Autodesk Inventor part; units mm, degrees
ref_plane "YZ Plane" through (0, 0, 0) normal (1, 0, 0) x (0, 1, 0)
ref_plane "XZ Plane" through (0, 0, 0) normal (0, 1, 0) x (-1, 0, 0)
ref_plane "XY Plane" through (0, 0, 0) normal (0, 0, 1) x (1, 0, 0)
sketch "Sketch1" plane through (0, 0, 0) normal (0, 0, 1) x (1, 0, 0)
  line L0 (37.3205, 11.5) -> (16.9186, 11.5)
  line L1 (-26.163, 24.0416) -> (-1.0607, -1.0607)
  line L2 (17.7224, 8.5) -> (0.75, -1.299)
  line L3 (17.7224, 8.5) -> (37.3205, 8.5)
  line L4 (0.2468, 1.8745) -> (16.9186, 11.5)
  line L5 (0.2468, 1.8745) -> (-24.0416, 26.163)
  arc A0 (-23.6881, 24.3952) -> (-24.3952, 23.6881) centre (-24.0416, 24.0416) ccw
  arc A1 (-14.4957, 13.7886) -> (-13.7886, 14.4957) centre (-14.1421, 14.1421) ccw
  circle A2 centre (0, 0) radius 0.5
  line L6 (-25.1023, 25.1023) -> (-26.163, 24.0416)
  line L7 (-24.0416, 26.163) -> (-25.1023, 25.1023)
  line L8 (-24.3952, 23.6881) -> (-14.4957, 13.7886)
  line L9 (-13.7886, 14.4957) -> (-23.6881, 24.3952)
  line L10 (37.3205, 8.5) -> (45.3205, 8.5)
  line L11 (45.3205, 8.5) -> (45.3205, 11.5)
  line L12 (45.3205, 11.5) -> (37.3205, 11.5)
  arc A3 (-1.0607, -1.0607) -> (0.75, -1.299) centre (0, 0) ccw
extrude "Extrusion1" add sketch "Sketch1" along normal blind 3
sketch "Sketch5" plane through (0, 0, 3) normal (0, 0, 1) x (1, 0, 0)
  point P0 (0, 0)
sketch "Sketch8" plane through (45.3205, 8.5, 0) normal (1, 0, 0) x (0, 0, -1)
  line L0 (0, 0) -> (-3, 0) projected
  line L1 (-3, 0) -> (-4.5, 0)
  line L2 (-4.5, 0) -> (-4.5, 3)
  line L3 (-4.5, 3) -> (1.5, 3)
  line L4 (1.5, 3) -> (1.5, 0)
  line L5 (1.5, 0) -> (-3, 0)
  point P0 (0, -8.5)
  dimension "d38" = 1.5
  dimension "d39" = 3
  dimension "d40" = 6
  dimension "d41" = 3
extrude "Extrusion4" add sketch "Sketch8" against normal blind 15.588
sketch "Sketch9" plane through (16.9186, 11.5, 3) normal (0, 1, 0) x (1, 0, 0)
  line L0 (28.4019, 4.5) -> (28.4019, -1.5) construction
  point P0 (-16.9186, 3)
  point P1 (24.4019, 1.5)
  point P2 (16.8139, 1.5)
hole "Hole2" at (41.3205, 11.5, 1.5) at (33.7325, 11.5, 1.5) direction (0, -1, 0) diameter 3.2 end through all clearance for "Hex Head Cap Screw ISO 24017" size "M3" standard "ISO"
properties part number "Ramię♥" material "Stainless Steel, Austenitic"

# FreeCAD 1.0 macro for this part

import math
import FreeCAD as App
import Part
import Sketcher
from FreeCAD import Vector
Q = App.Units.Quantity

doc = App.newDocument("Part")
body = doc.addObject("PartDesign::Body", "Body")

# Sketch on XY plane
sketch1 = doc.addObject("Sketcher::SketchObject", "Sketch")
body.addObject(sketch1)
sketch1.AttachmentSupport = (doc.XY_Plane, [""])
sketch1.MapMode = "FlatFace"
sketch1.addGeometry(Part.LineSegment(Vector(45.32, 11.5, 0), Vector(16.92, 11.5, 0)), False)
sketch1.addGeometry(Part.LineSegment(Vector(16.92, 11.5, 0), Vector(0.25, 1.87, 0)), False)
sketch1.addGeometry(Part.LineSegment(Vector(0.25, 1.87, 0), Vector(-24.04, 26.16, 0)), False)
sketch1.addGeometry(Part.LineSegment(Vector(-24.04, 26.16, 0), Vector(-26.16, 24.04, 0)), False)
sketch1.addGeometry(Part.LineSegment(Vector(-26.16, 24.04, 0), Vector(-1.06, -1.06, 0)), False)
sketch1.addGeometry(Part.ArcOfCircle(Part.Circle(Vector(0, 0, 0), Vector(0, 0, 1), 1.5), math.radians(-135), math.radians(-60)), False)
sketch1.addGeometry(Part.LineSegment(Vector(0.75, -1.3, 0), Vector(17.72, 8.5, 0)), False)
sketch1.addGeometry(Part.LineSegment(Vector(17.72, 8.5, 0), Vector(45.32, 8.5, 0)), False)
sketch1.addGeometry(Part.LineSegment(Vector(45.32, 8.5, 0), Vector(45.32, 11.5, 0)), False)
sketch1.addGeometry(Part.Circle(Vector(0, 0, 0), Vector(0, 0, 1), 0.5), False)
sketch1.addGeometry(Part.ArcOfCircle(Part.Circle(Vector(-24.04, 24.04, 0), Vector(0, 0, 1), 0.5), math.radians(45), math.radians(225)), False)
sketch1.addGeometry(Part.LineSegment(Vector(-23.69, 24.4, 0), Vector(-13.79, 14.5, 0)), False)
sketch1.addGeometry(Part.ArcOfCircle(Part.Circle(Vector(-14.14, 14.14, 0), Vector(0, 0, 1), 0.5), math.radians(-135), math.radians(45)), False)
sketch1.addGeometry(Part.LineSegment(Vector(-14.5, 13.79, 0), Vector(-24.4, 23.69, 0)), False)
sketch1.addConstraint(Sketcher.Constraint("Coincident", 0, 2, 1, 1))
sketch1.addConstraint(Sketcher.Constraint("Coincident", 1, 2, 2, 1))
sketch1.addConstraint(Sketcher.Constraint("Coincident", 2, 2, 3, 1))
sketch1.addConstraint(Sketcher.Constraint("Coincident", 3, 2, 4, 1))
sketch1.addConstraint(Sketcher.Constraint("Tangent", 4, 2, 5, 1))
sketch1.addConstraint(Sketcher.Constraint("Tangent", 5, 2, 6, 1))
sketch1.addConstraint(Sketcher.Constraint("Coincident", 6, 2, 7, 1))
sketch1.addConstraint(Sketcher.Constraint("Coincident", 7, 2, 8, 1))
sketch1.addConstraint(Sketcher.Constraint("Coincident", 8, 2, 0, 1))
sketch1.addConstraint(Sketcher.Constraint("Tangent", 10, 1, 11, 1))
sketch1.addConstraint(Sketcher.Constraint("Tangent", 11, 2, 12, 2))
sketch1.addConstraint(Sketcher.Constraint("Tangent", 12, 1, 13, 1))
sketch1.addConstraint(Sketcher.Constraint("Tangent", 13, 2, 10, 2))
sketch1.addConstraint(Sketcher.Constraint("Horizontal", 0))
sketch1.addConstraint(Sketcher.Constraint("Horizontal", 7))
sketch1.addConstraint(Sketcher.Constraint("Vertical", 8))
sketch1.addConstraint(Sketcher.Constraint("Coincident", 5, 3, -1, 1))
sketch1.addConstraint(Sketcher.Constraint("Coincident", 9, 3, -1, 1))
sketch1.addConstraint(Sketcher.Constraint("Equal", 9, 10))
sketch1.addConstraint(Sketcher.Constraint("Equal", 10, 12))
sketch1.addConstraint(Sketcher.Constraint("Perpendicular", 2, 3))
sketch1.addConstraint(Sketcher.Constraint("Perpendicular", 3, 4))
sketch1.addConstraint(Sketcher.Constraint("Parallel", 1, 6))
sketch1.addConstraint(Sketcher.Constraint("Parallel", 4, 11))
sketch1.addConstraint(Sketcher.Constraint("Horizontal", 10, 3, 3, 2))
sketch1.addConstraint(Sketcher.Constraint("Vertical", 10, 3, 2, 2))
sketch1.addConstraint(Sketcher.Constraint("Diameter", 9, 1.0))
sketch1.addConstraint(Sketcher.Constraint("Radius", 5, 1.5))
sketch1.addConstraint(Sketcher.Constraint("DistanceY", 8, 1, 8, 2, 3.0))
sketch1.addConstraint(Sketcher.Constraint("Angle", 1, Q("-150 deg")))
sketch1.addConstraint(Sketcher.Constraint("Angle", 2, Q("135 deg")))
sketch1.addConstraint(Sketcher.Constraint("Distance", 3, 3.0))
sketch1.addConstraint(Sketcher.Constraint("Distance", 11, 14.0))
sketch1.addConstraint(Sketcher.Constraint("Distance", 4, 35.5))
sketch1.addConstraint(Sketcher.Constraint("DistanceY", -1, 1, 0, 2, 11.5))
sketch1.addConstraint(Sketcher.Constraint("DistanceX", 0, 2, 0, 1, 28.402))
sketch1.addConstraint(Sketcher.Constraint("DistanceX", 7, 1, 7, 2, 27.598))
pad1 = doc.addObject("PartDesign::Pad", "Pad")
body.addObject(pad1)
pad1.Profile = sketch1
pad1.Length = 3

# Sketch on YZ plane
sketch2 = doc.addObject("Sketcher::SketchObject", "Sketch001")
body.addObject(sketch2)
sketch2.AttachmentSupport = (doc.YZ_Plane, [""])
sketch2.MapMode = "FlatFace"
sketch2.AttachmentOffset = App.Placement(Vector(0, 0, 45.3205), App.Rotation())
sketch2.addGeometry(Part.LineSegment(Vector(8.5, 4.5, 0), Vector(8.5, -1.5, 0)), False)
sketch2.addGeometry(Part.LineSegment(Vector(8.5, -1.5, 0), Vector(11.5, -1.5, 0)), False)
sketch2.addGeometry(Part.LineSegment(Vector(11.5, -1.5, 0), Vector(11.5, 4.5, 0)), False)
sketch2.addGeometry(Part.LineSegment(Vector(11.5, 4.5, 0), Vector(8.5, 4.5, 0)), False)
sketch2.addConstraint(Sketcher.Constraint("Coincident", 0, 2, 1, 1))
sketch2.addConstraint(Sketcher.Constraint("Coincident", 1, 2, 2, 1))
sketch2.addConstraint(Sketcher.Constraint("Coincident", 2, 2, 3, 1))
sketch2.addConstraint(Sketcher.Constraint("Coincident", 3, 2, 0, 1))
sketch2.addConstraint(Sketcher.Constraint("Vertical", 0))
sketch2.addConstraint(Sketcher.Constraint("Horizontal", 1))
sketch2.addConstraint(Sketcher.Constraint("Vertical", 2))
sketch2.addConstraint(Sketcher.Constraint("Horizontal", 3))
sketch2.addConstraint(Sketcher.Constraint("DistanceX", 1, 1, 1, 2, 3.0))
sketch2.addConstraint(Sketcher.Constraint("DistanceY", 0, 2, 0, 1, 6.0))
sketch2.addConstraint(Sketcher.Constraint("DistanceY", 0, 2, -1, 1, 1.5))
sketch2.addConstraint(Sketcher.Constraint("DistanceX", -1, 1, 0, 2, 8.5))
pad2 = doc.addObject("PartDesign::Pad", "Pad001")
body.addObject(pad2)
pad2.Profile = sketch2
pad2.Length = 15.588
pad2.Reversed = True

# Sketch on XZ plane
sketch3 = doc.addObject("Sketcher::SketchObject", "Sketch002")
body.addObject(sketch3)
sketch3.AttachmentSupport = (doc.XZ_Plane, [""])
sketch3.MapMode = "FlatFace"
sketch3.AttachmentOffset = App.Placement(Vector(0, 0, -11.5), App.Rotation())
sketch3.addGeometry(Part.Circle(Vector(41.3, 1.5, 0), Vector(0, 0, 1), 1.6), False)
sketch3.addGeometry(Part.Circle(Vector(33.7, 1.5, 0), Vector(0, 0, 1), 1.6), False)
sketch3.addConstraint(Sketcher.Constraint("Equal", 0, 1))
sketch3.addConstraint(Sketcher.Constraint("Horizontal", 0, 3, 1, 3))
sketch3.addConstraint(Sketcher.Constraint("Diameter", 0, 3.2))
sketch3.addConstraint(Sketcher.Constraint("DistanceY", -1, 1, 0, 3, 1.5))
sketch3.addConstraint(Sketcher.Constraint("DistanceX", 1, 3, 0, 3, 7.588))
sketch3.addConstraint(Sketcher.Constraint("DistanceX", -1, 1, 0, 3, 41.3205))
doc.recompute()
hole = doc.addObject("PartDesign::Hole", "Hole")
body.addObject(hole)
hole.Profile = sketch3
hole.ThreadType = "None"
hole.Diameter = 3.2
hole.DepthType = "ThroughAll"
hole.Reversed = True

doc.recompute()
